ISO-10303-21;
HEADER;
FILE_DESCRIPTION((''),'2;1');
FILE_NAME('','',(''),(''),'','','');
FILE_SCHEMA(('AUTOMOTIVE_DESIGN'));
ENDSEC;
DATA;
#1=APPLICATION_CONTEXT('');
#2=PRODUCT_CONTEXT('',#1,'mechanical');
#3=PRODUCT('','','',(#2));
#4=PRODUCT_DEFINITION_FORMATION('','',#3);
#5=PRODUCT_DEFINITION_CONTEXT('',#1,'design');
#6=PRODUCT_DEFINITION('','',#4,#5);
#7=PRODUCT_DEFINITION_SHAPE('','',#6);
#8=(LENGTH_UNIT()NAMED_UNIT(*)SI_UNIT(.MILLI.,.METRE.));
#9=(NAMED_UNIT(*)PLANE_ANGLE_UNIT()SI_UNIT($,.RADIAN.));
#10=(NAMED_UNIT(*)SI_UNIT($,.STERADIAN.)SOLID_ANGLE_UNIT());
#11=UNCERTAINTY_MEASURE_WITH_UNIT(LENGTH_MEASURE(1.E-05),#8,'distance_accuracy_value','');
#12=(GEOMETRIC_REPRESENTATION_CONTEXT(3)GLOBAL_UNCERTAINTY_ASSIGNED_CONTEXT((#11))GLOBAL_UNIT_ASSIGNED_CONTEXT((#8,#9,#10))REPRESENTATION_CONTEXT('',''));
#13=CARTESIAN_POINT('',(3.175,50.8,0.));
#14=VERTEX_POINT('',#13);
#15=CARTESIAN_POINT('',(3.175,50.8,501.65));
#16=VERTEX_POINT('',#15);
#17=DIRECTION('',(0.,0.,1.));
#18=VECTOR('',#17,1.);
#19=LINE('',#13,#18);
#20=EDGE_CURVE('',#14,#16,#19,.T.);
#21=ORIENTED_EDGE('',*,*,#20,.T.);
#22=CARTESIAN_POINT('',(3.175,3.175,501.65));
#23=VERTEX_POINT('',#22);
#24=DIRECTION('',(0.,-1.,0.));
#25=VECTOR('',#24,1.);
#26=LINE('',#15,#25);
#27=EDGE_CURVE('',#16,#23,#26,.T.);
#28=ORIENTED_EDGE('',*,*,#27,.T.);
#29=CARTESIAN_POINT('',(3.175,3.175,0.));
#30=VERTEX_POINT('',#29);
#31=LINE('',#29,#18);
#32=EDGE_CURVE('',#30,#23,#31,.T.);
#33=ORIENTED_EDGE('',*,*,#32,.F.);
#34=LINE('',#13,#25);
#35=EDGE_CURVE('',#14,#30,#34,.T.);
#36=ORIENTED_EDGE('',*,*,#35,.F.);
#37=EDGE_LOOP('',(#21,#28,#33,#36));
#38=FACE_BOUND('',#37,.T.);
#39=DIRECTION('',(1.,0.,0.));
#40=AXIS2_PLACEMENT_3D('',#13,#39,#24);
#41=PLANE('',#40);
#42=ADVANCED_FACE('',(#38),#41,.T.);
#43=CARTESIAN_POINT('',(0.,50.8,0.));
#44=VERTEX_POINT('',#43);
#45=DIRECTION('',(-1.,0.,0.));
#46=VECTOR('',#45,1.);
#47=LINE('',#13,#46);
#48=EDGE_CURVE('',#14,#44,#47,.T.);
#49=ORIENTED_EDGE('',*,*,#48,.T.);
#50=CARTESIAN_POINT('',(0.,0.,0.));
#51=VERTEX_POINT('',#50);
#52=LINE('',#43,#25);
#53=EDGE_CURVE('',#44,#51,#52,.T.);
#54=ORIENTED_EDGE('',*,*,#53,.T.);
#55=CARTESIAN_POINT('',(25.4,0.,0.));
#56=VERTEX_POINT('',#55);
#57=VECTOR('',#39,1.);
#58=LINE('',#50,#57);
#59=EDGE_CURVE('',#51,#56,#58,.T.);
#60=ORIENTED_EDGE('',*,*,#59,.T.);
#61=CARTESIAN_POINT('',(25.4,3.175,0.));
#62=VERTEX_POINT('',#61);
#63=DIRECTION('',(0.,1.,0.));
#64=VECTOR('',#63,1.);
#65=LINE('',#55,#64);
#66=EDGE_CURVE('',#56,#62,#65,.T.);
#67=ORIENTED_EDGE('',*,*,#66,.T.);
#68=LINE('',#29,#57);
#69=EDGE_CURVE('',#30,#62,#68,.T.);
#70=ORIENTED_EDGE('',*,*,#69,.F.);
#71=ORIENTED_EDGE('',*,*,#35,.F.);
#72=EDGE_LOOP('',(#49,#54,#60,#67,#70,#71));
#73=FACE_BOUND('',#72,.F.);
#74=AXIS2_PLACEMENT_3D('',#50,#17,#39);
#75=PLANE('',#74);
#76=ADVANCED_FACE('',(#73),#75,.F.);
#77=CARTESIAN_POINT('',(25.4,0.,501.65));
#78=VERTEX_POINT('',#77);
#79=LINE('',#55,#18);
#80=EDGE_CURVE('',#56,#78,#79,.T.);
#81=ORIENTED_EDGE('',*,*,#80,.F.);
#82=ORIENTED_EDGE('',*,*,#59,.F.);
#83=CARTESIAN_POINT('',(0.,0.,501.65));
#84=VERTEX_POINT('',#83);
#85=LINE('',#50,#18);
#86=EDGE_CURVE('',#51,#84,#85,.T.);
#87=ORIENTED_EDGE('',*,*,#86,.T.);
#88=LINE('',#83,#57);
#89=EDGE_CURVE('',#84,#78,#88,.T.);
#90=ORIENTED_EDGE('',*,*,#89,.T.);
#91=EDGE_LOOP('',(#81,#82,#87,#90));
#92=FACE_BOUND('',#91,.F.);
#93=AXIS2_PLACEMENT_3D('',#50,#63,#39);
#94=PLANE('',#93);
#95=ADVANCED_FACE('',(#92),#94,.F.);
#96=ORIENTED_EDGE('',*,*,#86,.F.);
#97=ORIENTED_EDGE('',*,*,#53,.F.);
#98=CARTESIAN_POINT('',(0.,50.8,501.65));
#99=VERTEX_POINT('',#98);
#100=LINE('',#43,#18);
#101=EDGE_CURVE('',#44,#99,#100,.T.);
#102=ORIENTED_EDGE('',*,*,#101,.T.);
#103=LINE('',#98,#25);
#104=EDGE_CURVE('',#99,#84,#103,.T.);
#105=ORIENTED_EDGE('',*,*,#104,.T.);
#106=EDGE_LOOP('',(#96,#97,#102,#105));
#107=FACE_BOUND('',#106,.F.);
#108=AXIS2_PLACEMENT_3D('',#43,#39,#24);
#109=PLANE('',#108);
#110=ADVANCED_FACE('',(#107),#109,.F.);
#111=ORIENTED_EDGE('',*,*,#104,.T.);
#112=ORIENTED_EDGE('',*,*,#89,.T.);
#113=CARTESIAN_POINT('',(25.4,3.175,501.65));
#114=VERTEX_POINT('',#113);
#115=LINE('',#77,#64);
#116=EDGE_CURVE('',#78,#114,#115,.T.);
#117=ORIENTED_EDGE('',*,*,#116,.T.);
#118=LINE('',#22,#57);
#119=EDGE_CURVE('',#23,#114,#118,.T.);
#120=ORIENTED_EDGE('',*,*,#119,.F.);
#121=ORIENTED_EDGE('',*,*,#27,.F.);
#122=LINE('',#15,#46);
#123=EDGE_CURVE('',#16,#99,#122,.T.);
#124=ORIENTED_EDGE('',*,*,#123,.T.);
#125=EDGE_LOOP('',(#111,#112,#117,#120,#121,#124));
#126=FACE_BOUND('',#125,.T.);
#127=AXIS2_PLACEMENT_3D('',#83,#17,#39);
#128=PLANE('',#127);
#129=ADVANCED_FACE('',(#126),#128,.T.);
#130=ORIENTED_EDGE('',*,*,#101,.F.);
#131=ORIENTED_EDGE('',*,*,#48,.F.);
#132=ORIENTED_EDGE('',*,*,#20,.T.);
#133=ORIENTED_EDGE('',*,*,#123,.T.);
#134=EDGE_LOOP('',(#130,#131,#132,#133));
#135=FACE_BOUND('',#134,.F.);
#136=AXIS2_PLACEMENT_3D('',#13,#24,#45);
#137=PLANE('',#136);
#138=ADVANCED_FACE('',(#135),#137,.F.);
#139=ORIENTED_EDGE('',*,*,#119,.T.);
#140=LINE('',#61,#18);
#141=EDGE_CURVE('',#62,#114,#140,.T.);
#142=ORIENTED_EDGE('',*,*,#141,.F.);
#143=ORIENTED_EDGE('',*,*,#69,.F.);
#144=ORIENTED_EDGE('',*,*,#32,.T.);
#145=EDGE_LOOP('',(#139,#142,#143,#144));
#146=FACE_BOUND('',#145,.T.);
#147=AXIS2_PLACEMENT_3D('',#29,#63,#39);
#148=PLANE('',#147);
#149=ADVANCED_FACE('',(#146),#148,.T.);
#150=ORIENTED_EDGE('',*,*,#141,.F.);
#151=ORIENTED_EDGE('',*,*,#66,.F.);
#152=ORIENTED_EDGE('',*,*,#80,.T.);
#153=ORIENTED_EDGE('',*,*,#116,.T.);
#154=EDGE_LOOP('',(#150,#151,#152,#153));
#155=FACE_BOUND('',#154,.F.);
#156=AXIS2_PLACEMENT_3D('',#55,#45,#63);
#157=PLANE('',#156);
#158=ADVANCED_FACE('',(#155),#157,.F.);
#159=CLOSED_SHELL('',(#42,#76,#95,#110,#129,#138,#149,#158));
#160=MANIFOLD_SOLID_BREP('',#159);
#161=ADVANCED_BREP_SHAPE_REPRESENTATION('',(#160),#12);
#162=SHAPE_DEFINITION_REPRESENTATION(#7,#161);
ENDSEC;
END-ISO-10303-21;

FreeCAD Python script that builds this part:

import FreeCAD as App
import Part
import Sketcher

V = App.Vector
Q = App.Units.Quantity

doc = App.newDocument("Part")
body = doc.addObject("PartDesign::Body", "Body")

# Sketch on XY plane
sketch1 = body.newObject("Sketcher::SketchObject", "Sketch")
sketch1.AttachmentSupport = (doc.getObject("XY_Plane"), [""])
sketch1.MapMode = "FlatFace"
sketch1.addGeometry([
    Part.LineSegment(V(0, 50.8, 0), V(0, 0, 0)),  # 0
    Part.LineSegment(V(0, 0, 0), V(25.4, 0, 0)),  # 1
    Part.LineSegment(V(25.4, 0, 0), V(25.4, 3.2, 0)),  # 2
    Part.LineSegment(V(25.4, 3.2, 0), V(3.2, 3.2, 0)),  # 3
    Part.LineSegment(V(3.2, 3.2, 0), V(3.2, 50.8, 0)),  # 4
    Part.LineSegment(V(3.2, 50.8, 0), V(0, 50.8, 0)),  # 5
], False)
sketch1.addConstraint([
    Sketcher.Constraint("Coincident", 0, 2, 1, 1),
    Sketcher.Constraint("Coincident", 1, 2, 2, 1),
    Sketcher.Constraint("Coincident", 2, 2, 3, 1),
    Sketcher.Constraint("Coincident", 3, 2, 4, 1),
    Sketcher.Constraint("Coincident", 4, 2, 5, 1),
    Sketcher.Constraint("Coincident", 5, 2, 0, 1),
    Sketcher.Constraint("Vertical", 0),
    Sketcher.Constraint("Horizontal", 1),
    Sketcher.Constraint("Vertical", 2),
    Sketcher.Constraint("Horizontal", 3),
    Sketcher.Constraint("Vertical", 4),
    Sketcher.Constraint("Horizontal", 5),
    Sketcher.Constraint("Coincident", 0, 2, -1, 1),
    Sketcher.Constraint("Equal", 5, 2),
    Sketcher.Constraint("DistanceX", 1, 1, 1, 2, Q("1 in")),
    Sketcher.Constraint("DistanceY", 0, 2, 0, 1, Q("2 in")),
    Sketcher.Constraint("DistanceX", 5, 2, 5, 1, Q("0.125 in")),
])
pad1 = body.newObject("PartDesign::Pad", "Pad")
pad1.Profile = sketch1
pad1.Length = Q("19.75 in")

doc.recompute()
